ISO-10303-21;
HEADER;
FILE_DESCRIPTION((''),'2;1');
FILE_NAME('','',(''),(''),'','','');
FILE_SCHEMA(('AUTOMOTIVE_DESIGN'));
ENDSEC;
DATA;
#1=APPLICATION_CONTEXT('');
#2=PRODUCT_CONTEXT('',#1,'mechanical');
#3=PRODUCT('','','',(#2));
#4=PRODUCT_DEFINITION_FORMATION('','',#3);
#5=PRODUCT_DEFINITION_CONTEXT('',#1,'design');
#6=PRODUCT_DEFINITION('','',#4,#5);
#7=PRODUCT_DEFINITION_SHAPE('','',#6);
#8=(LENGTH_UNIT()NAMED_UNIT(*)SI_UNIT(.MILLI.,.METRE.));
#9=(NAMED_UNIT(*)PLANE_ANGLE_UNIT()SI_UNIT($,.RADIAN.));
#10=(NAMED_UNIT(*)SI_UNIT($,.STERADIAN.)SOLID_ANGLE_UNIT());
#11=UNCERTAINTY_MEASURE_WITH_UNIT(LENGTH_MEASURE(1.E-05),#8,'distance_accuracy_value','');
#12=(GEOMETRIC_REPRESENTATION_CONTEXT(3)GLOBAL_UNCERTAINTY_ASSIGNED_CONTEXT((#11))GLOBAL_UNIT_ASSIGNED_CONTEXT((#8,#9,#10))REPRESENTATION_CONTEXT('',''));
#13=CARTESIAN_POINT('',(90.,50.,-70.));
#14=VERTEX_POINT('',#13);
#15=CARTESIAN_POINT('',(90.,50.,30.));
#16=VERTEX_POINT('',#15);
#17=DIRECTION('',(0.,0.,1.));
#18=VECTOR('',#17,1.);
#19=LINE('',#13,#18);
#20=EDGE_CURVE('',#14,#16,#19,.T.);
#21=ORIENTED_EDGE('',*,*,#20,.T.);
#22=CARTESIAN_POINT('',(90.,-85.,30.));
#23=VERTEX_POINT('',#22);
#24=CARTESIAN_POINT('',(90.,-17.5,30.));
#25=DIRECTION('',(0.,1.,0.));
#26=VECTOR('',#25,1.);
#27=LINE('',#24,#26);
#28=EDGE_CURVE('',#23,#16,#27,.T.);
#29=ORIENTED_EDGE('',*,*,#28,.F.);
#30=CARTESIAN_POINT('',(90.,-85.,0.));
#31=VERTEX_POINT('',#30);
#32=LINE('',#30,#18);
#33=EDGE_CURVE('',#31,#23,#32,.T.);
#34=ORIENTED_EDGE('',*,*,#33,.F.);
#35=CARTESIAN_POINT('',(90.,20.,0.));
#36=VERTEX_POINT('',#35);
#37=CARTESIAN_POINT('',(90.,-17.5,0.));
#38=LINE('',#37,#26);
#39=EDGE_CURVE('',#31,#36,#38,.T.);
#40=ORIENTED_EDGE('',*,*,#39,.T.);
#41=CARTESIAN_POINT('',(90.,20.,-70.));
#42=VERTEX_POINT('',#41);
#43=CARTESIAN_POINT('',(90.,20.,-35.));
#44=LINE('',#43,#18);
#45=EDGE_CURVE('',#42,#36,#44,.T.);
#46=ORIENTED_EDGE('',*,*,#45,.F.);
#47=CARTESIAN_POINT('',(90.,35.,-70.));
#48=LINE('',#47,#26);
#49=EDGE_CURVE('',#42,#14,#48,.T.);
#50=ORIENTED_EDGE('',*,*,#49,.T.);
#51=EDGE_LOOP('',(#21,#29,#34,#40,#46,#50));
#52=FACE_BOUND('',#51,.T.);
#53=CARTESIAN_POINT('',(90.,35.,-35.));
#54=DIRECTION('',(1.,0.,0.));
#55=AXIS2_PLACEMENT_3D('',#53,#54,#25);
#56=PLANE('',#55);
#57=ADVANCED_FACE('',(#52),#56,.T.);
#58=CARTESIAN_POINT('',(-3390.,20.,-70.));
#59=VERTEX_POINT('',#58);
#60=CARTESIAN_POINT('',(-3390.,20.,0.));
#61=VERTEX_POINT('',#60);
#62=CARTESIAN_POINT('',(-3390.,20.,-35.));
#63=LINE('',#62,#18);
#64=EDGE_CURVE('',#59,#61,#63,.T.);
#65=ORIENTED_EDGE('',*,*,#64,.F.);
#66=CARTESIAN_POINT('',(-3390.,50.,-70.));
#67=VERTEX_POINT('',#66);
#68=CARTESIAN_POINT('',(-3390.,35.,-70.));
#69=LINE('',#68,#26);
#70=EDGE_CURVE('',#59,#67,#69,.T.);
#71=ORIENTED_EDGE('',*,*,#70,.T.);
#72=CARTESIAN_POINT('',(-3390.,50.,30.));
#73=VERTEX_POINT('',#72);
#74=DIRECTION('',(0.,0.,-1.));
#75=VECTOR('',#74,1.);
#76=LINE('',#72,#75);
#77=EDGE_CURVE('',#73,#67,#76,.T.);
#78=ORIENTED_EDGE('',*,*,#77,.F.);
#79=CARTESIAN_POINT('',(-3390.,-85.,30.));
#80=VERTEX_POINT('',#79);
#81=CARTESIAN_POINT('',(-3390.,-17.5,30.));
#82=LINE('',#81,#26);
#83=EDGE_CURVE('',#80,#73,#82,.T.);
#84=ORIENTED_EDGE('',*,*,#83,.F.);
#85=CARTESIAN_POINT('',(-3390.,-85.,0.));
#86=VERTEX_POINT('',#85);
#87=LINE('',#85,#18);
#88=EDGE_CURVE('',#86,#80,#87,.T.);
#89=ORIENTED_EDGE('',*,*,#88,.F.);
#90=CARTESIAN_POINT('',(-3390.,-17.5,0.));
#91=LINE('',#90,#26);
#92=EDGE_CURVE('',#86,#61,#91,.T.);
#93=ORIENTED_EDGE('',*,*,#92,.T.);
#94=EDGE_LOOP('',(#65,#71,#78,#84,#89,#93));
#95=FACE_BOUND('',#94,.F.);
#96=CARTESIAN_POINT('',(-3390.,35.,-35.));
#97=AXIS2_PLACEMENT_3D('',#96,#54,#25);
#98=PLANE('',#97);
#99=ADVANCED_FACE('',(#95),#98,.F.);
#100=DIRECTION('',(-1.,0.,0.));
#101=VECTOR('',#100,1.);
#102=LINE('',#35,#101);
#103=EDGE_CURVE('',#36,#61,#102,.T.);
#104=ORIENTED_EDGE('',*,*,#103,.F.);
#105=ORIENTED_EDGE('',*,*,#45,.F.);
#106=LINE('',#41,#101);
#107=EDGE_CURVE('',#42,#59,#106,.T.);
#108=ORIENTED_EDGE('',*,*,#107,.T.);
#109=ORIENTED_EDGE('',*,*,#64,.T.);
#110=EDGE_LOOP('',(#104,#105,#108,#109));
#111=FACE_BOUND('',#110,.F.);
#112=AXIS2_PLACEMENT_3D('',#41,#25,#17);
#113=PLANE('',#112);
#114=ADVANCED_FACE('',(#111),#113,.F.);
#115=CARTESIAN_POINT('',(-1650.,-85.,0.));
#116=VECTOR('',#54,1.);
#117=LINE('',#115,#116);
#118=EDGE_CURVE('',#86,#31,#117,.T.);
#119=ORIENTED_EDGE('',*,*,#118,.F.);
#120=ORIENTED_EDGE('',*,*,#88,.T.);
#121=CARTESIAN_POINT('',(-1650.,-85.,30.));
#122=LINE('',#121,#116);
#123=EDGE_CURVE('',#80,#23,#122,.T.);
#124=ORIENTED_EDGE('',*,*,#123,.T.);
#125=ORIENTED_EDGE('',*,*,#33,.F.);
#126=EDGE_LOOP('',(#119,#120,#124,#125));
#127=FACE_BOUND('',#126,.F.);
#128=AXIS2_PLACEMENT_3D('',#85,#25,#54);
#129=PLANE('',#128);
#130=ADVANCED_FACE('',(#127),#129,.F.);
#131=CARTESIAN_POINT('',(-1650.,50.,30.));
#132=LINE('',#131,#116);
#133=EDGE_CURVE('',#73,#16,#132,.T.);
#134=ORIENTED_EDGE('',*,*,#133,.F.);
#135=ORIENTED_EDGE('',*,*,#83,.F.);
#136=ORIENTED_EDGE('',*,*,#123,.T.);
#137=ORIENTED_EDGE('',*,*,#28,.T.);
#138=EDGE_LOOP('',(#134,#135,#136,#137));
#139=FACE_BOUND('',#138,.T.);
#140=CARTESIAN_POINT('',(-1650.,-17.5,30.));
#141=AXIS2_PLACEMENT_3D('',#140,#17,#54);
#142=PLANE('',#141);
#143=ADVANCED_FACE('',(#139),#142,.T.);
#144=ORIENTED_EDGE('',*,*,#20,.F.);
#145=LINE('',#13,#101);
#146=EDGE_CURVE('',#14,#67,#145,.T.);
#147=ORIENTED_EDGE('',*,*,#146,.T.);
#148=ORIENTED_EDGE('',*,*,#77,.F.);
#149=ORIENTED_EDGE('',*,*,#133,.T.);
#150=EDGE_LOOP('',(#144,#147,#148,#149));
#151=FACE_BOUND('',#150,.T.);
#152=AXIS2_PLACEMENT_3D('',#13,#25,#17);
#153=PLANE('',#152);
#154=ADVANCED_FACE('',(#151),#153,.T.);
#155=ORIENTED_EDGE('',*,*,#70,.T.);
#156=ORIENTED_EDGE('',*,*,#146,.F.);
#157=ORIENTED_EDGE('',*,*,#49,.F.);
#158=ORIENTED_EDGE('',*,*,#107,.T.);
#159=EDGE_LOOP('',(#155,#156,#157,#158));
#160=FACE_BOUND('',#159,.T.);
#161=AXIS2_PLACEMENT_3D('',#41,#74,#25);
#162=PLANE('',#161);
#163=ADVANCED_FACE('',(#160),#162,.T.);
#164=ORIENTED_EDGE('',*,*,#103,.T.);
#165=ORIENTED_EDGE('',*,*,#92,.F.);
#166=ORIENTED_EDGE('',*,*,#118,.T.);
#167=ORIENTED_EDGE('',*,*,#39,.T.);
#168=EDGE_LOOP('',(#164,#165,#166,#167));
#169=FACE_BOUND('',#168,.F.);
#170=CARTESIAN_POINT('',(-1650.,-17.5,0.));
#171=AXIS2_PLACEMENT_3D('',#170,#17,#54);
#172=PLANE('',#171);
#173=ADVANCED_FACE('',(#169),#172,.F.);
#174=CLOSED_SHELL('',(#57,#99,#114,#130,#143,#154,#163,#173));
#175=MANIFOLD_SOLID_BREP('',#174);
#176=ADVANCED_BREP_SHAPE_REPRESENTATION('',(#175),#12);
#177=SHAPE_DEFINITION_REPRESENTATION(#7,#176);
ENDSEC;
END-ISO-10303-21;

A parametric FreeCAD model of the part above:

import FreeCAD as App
import Part
import Sketcher

V = App.Vector


def add_polygon(sketch, points):
    """Adds a closed chain of lines whose ends are joined by coincident constraints."""
    first, n = sketch.GeometryCount, len(points)
    for a, b in zip(points, points[1:] + points[:1]):
        sketch.addGeometry(Part.LineSegment(App.Vector(*a, 0), App.Vector(*b, 0)), False)
    for i in range(n):
        sketch.addConstraint(Sketcher.Constraint("Coincident", first + i, 2, first + (i + 1) % n, 1))

doc = App.newDocument("Part")
body = doc.addObject("PartDesign::Body", "Body")

sketch1 = body.newObject("Sketcher::SketchObject", "Sketch")
sketch1.AttachmentSupport = (doc.getObject("XY_Plane"), [""])
sketch1.MapMode = "FlatFace"
add_polygon(sketch1, [(-3390, 50), (-3390, -85), (90, -85), (90, 50)])
sketch1.addConstraint([
    Sketcher.Constraint("Vertical", 0),
    Sketcher.Constraint("Horizontal", 1),
    Sketcher.Constraint("Vertical", 2),
    Sketcher.Constraint("Horizontal", 3),
    Sketcher.Constraint("DistanceX", 1, 1, 1, 2, 3480.0),
    Sketcher.Constraint("DistanceY", 0, 2, 0, 1, 135.0),
    Sketcher.Constraint("DistanceX", 0, 2, -1, 1, 3390.0),
    Sketcher.Constraint("DistanceY", 0, 2, -1, 1, 85.0),
])
pad1 = body.newObject("PartDesign::Pad", "Pad")
pad1.Profile = sketch1
pad1.Length = 30

sketch2 = body.newObject("Sketcher::SketchObject", "Sketch001")
sketch2.AttachmentSupport = (doc.getObject("YZ_Plane"), [""])
sketch2.MapMode = "FlatFace"
sketch2.AttachmentOffset = App.Placement(V(0, 0, 90), App.Rotation())
add_polygon(sketch2, [(20, 0), (20, -70), (50, -70), (50, 0)])
sketch2.addConstraint([
    Sketcher.Constraint("Vertical", 0),
    Sketcher.Constraint("Horizontal", 1),
    Sketcher.Constraint("Vertical", 2),
    Sketcher.Constraint("Horizontal", 3),
    Sketcher.Constraint("PointOnObject", 2, 2, -1),
    Sketcher.Constraint("DistanceX", 1, 1, 1, 2, 30.0),
    Sketcher.Constraint("DistanceY", 0, 2, 0, 1, 70.0),
    Sketcher.Constraint("DistanceX", -1, 1, 0, 2, 20.0),
])
pad2 = body.newObject("PartDesign::Pad", "Pad001")
pad2.Profile = sketch2
pad2.Length = 3480
pad2.Reversed = True

doc.recompute()
